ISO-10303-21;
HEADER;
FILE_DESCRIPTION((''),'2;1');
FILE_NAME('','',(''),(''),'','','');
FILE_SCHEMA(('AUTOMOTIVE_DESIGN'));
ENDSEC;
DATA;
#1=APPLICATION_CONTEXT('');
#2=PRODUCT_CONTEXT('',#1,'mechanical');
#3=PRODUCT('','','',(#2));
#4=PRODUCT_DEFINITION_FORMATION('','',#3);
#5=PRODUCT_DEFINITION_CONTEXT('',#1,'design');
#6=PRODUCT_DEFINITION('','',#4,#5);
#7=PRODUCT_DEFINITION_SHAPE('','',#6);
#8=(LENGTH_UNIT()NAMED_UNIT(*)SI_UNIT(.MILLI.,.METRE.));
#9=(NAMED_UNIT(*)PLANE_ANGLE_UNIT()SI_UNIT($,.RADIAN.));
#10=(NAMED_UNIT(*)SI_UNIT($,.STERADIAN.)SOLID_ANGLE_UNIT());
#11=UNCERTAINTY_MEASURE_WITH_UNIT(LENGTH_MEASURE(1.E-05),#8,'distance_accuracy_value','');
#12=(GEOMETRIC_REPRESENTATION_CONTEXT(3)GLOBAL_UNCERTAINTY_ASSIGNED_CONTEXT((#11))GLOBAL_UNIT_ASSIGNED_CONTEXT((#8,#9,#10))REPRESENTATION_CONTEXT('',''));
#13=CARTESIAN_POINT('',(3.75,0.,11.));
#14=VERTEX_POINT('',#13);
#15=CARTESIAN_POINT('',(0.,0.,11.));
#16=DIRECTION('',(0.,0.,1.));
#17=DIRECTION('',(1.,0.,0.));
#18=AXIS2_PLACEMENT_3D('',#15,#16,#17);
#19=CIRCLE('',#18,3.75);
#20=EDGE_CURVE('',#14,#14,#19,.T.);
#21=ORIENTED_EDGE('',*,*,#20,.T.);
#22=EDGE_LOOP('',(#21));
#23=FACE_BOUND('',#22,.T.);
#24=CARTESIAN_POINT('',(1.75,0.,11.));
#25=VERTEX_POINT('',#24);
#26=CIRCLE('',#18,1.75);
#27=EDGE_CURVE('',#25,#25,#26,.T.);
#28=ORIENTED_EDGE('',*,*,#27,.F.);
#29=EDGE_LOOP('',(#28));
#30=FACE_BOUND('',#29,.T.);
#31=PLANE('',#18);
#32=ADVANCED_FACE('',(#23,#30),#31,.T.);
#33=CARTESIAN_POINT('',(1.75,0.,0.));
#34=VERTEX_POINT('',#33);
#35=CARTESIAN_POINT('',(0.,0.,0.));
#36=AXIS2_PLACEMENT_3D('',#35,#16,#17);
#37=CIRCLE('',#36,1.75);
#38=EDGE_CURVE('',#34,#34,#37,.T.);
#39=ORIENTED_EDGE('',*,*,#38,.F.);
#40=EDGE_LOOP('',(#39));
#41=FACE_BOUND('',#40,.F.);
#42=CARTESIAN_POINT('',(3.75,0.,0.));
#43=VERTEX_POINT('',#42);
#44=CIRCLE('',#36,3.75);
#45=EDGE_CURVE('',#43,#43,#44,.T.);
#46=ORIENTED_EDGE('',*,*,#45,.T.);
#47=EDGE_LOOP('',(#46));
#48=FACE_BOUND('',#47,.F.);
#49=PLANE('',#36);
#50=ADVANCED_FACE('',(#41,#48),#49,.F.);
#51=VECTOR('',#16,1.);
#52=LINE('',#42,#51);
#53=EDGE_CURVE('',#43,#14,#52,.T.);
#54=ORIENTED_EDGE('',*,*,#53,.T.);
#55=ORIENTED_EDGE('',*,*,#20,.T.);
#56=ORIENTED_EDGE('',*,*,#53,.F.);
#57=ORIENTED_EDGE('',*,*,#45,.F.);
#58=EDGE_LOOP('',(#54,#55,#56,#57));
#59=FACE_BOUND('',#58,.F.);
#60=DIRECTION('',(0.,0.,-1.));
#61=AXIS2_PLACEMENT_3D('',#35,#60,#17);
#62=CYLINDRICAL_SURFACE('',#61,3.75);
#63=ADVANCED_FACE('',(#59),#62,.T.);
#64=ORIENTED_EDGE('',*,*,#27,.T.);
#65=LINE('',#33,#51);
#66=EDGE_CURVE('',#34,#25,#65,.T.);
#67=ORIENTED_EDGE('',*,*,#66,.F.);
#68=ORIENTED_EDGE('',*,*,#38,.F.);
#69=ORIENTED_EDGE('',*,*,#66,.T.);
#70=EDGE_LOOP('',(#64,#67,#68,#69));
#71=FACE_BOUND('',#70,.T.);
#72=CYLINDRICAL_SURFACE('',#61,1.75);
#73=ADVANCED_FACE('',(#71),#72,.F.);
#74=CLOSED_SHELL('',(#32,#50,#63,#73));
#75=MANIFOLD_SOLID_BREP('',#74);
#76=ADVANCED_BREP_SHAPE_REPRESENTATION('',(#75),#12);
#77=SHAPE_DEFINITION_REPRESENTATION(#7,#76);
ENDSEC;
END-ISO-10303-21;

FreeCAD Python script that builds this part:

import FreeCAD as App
import Part
import Sketcher

doc = App.newDocument("Part")
body = doc.addObject("PartDesign::Body", "Body")

# Sketch on XY plane
sketch1 = body.newObject("Sketcher::SketchObject", "Sketch")
sketch1.AttachmentSupport = (doc.getObject("XY_Plane"), [""])
sketch1.MapMode = "FlatFace"
sketch1.addGeometry(Part.Circle(App.Vector(0, 0, 0), App.Vector(0, 0, 1), 3.75), False)
sketch1.addGeometry(Part.Circle(App.Vector(0, 0, 0), App.Vector(0, 0, 1), 1.75), False)
sketch1.addConstraint(Sketcher.Constraint("Coincident", 0, 3, -1, 1))
sketch1.addConstraint(Sketcher.Constraint("Coincident", 1, 3, -1, 1))
sketch1.addConstraint(Sketcher.Constraint("Diameter", 0, 7.5))
sketch1.addConstraint(Sketcher.Constraint("Diameter", 1, 3.5))
pad1 = body.newObject("PartDesign::Pad", "Pad")
pad1.Profile = sketch1
pad1.Length = 11

doc.recompute()
